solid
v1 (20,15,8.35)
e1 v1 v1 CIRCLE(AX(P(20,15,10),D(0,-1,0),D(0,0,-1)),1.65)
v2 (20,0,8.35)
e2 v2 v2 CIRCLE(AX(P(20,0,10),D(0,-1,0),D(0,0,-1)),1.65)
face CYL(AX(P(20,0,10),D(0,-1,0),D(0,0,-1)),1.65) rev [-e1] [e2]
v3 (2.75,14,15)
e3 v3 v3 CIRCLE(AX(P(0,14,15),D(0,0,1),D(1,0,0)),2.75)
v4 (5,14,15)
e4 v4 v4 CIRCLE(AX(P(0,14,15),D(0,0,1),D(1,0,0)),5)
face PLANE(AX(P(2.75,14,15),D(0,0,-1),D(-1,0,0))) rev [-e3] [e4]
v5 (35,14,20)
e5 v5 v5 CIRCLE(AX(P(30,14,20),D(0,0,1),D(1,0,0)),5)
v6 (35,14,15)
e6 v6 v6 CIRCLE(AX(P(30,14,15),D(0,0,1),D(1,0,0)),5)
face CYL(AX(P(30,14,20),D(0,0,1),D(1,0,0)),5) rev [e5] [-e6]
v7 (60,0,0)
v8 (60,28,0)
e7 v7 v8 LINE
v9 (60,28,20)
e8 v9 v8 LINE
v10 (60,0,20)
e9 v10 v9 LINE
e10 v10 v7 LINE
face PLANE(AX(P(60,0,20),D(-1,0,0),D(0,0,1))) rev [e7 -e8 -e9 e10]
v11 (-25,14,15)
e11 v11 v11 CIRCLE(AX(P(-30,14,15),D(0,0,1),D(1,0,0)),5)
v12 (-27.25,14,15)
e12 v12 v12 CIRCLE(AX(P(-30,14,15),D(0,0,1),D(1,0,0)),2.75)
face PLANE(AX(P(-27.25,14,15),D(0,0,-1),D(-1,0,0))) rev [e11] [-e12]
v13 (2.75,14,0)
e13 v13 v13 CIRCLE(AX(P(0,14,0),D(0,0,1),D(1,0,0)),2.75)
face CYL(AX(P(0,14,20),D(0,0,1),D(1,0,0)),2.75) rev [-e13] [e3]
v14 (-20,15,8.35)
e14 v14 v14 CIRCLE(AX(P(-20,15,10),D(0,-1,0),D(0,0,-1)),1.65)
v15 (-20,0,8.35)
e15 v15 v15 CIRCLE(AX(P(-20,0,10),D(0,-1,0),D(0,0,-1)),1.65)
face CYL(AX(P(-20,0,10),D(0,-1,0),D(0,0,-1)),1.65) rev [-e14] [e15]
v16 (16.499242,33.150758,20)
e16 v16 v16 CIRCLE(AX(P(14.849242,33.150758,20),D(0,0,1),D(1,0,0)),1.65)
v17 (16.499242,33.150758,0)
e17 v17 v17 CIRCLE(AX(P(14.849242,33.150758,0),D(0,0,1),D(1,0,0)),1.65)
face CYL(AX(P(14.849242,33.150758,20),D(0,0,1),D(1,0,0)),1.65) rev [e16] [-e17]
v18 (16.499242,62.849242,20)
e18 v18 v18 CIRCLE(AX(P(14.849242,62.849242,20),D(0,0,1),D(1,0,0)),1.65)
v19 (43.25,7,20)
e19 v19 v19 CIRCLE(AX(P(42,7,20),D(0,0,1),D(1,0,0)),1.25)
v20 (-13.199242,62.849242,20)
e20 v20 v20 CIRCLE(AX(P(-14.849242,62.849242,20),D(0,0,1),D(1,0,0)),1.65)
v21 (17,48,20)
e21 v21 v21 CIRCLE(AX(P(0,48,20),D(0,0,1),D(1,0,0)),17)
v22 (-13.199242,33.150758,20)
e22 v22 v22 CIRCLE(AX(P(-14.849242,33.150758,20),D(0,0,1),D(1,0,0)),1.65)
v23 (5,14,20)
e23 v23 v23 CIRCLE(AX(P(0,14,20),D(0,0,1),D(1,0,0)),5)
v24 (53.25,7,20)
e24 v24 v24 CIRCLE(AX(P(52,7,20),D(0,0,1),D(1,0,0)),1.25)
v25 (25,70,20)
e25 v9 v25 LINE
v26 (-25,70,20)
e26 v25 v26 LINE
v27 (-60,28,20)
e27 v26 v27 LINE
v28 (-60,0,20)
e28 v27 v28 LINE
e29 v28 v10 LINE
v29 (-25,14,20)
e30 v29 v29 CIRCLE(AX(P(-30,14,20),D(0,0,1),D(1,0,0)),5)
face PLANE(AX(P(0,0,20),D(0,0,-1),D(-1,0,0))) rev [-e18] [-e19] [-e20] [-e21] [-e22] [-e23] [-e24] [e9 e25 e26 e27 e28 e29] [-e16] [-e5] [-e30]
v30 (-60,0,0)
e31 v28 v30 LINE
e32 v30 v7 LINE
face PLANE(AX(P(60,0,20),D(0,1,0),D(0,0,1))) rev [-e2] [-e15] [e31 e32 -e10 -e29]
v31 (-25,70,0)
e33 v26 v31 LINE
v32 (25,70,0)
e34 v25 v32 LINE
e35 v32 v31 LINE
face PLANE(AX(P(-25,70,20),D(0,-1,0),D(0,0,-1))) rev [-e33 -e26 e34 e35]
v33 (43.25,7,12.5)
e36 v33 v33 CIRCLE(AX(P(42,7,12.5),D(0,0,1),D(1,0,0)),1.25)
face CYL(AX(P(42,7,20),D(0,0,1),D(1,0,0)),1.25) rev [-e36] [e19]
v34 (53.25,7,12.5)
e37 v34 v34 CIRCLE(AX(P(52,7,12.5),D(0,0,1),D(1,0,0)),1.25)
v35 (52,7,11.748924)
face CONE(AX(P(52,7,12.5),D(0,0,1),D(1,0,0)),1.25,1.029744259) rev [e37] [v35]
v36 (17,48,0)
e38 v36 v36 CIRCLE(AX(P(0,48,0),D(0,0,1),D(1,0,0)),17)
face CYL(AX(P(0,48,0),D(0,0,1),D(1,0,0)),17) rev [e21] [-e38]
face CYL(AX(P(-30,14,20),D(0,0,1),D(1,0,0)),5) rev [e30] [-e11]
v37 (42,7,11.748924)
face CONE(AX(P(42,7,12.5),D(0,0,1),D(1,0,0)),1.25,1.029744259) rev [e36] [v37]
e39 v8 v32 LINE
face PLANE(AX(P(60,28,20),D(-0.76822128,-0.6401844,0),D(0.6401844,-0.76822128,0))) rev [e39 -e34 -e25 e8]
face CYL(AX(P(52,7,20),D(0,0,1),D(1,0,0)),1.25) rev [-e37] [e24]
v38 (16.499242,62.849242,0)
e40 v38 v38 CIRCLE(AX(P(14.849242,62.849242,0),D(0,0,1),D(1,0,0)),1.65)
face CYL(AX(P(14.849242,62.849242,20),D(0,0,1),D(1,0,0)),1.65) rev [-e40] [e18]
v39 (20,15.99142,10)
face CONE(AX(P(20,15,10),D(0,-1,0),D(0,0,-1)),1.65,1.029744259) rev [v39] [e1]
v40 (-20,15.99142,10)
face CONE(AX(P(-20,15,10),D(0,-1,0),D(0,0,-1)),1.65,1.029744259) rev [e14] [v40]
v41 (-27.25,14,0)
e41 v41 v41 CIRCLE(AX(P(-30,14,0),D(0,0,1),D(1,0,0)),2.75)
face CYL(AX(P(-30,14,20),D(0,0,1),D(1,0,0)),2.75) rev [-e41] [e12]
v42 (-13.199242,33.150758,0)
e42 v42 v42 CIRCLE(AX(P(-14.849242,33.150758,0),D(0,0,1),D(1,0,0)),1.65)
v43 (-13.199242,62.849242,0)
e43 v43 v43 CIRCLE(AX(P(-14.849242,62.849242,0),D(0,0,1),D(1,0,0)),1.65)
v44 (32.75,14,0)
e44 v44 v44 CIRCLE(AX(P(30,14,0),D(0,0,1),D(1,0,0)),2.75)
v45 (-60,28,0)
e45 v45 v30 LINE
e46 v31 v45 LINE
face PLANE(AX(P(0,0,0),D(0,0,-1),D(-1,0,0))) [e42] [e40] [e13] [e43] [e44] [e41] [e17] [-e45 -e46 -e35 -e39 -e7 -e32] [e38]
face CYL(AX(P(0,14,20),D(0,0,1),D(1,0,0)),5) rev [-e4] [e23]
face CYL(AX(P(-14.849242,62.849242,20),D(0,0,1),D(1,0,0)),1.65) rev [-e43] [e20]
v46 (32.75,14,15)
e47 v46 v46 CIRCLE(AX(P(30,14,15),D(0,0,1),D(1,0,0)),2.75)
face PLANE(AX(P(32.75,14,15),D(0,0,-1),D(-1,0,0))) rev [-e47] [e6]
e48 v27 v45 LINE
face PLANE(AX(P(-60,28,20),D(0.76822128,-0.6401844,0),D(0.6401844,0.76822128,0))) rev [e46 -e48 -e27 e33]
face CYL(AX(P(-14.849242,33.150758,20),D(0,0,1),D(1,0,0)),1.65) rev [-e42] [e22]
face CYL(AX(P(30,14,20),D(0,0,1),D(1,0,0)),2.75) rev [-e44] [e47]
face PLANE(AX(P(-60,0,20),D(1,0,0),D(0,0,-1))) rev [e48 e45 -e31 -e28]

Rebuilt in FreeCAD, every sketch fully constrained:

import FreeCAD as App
import Part
import Sketcher
from FreeCAD import Vector

doc = App.newDocument("Part")
body = doc.addObject("PartDesign::Body", "Body")

sketch1 = body.newObject("Sketcher::SketchObject", "Sketch")
sketch1.AttachmentSupport = (doc.getObject("XY_Plane"), [""])
sketch1.MapMode = "FlatFace"
sketch1.addGeometry([
    Part.LineSegment(Vector(-60, 0, 0), Vector(60, 0, 0)),
    Part.LineSegment(Vector(60, 0, 0), Vector(60, 28, 0)),
    Part.LineSegment(Vector(60, 28, 0), Vector(25, 70, 0)),
    Part.LineSegment(Vector(25, 70, 0), Vector(-25, 70, 0)),
    Part.LineSegment(Vector(-25, 70, 0), Vector(-60, 28, 0)),
    Part.LineSegment(Vector(-60, 28, 0), Vector(-60, 0, 0)),
], False)
sketch1.addConstraint([
    Sketcher.Constraint("Coincident", 0, 2, 1, 1),
    Sketcher.Constraint("Coincident", 1, 2, 2, 1),
    Sketcher.Constraint("Coincident", 2, 2, 3, 1),
    Sketcher.Constraint("Coincident", 3, 2, 4, 1),
    Sketcher.Constraint("Coincident", 4, 2, 5, 1),
    Sketcher.Constraint("Coincident", 5, 2, 0, 1),
    Sketcher.Constraint("Horizontal", 0),
    Sketcher.Constraint("Vertical", 1),
    Sketcher.Constraint("Horizontal", 3),
    Sketcher.Constraint("Vertical", 5),
    Sketcher.Constraint("Symmetric", 0, 2, 5, 2, -1, 1),
    Sketcher.Constraint("Horizontal", 1, 2, 4, 2),
    Sketcher.Constraint("Equal", 2, 4),
    Sketcher.Constraint("DistanceX", 0, 1, 0, 2, 120.0),
    Sketcher.Constraint("DistanceX", 3, 2, 3, 1, 50.0),
    Sketcher.Constraint("DistanceY", 1, 1, 1, 2, 28.0),
    Sketcher.Constraint("DistanceY", -1, 1, 2, 2, 70.0),
])
pad1 = body.newObject("PartDesign::Pad", "Pad")
pad1.Profile = sketch1
pad1.Length = 20

sketch2 = body.newObject("Sketcher::SketchObject", "Sketch001")
sketch2.AttachmentSupport = (doc.getObject("XY_Plane"), [""])
sketch2.MapMode = "FlatFace"
sketch2.AttachmentOffset = App.Placement(Vector(0, 0, 20), App.Rotation())
sketch2.addGeometry([
    Part.Circle(Vector(-30, 14, 0), Vector(0, 0, 1), 2.75),
    Part.Circle(Vector(0, 14, 0), Vector(0, 0, 1), 2.75),
    Part.Circle(Vector(30, 14, 0), Vector(0, 0, 1), 2.75),
], False)
sketch2.addConstraint([
    Sketcher.Constraint("Equal", 0, 1),
    Sketcher.Constraint("Equal", 1, 2),
    Sketcher.Constraint("Symmetric", 0, 3, 2, 3, -2),
    Sketcher.Constraint("PointOnObject", 1, 3, -2),
    Sketcher.Constraint("Horizontal", 0, 3, 1, 3),
    Sketcher.Constraint("Diameter", 0, 5.5),
    Sketcher.Constraint("DistanceX", 0, 3, -1, 1, 30.0),
    Sketcher.Constraint("DistanceY", -1, 1, 0, 3, 14.0),
])
doc.recompute()
hole = body.newObject("PartDesign::Hole", "Hole")
hole.Profile = sketch2
hole.ThreadType = "None"
hole.Diameter = 5.5
hole.DepthType = "ThroughAll"
hole.HoleCutType = "Counterbore"
hole.HoleCutDiameter = 10
hole.HoleCutDepth = 5

sketch3 = body.newObject("Sketcher::SketchObject", "Sketch002")
sketch3.AttachmentSupport = (doc.getObject("XY_Plane"), [""])
sketch3.MapMode = "FlatFace"
sketch3.AttachmentOffset = App.Placement(Vector(0, 0, 20), App.Rotation())
sketch3.addGeometry(Part.Circle(Vector(0, 48, 0), Vector(0, 0, 1), 17), False)
sketch3.addConstraint([
    Sketcher.Constraint("PointOnObject", 0, 3, -2),
    Sketcher.Constraint("Diameter", 0, 34.0),
    Sketcher.Constraint("DistanceY", -1, 1, 0, 3, 48.0),
])
pocket1 = body.newObject("PartDesign::Pocket", "Pocket")
pocket1.Profile = sketch3
pocket1.Type = "ThroughAll"

sketch4 = body.newObject("Sketcher::SketchObject", "Sketch003")
sketch4.AttachmentSupport = (doc.getObject("XY_Plane"), [""])
sketch4.MapMode = "FlatFace"
sketch4.AttachmentOffset = App.Placement(Vector(0, 0, 20), App.Rotation())
sketch4.addGeometry([
    Part.Circle(Vector(-14.849242, 62.849242, 0), Vector(0, 0, 1), 1.65),
    Part.Circle(Vector(14.849242, 62.849242, 0), Vector(0, 0, 1), 1.65),
    Part.Circle(Vector(14.849242, 33.150758, 0), Vector(0, 0, 1), 1.65),
    Part.Circle(Vector(-14.849242, 33.150758, 0), Vector(0, 0, 1), 1.65),
], False)
sketch4.addConstraint([
    Sketcher.Constraint("Equal", 0, 1),
    Sketcher.Constraint("Equal", 1, 2),
    Sketcher.Constraint("Equal", 2, 3),
    Sketcher.Constraint("Symmetric", 0, 3, 1, 3, -2),
    Sketcher.Constraint("Symmetric", 2, 3, 3, 3, -2),
    Sketcher.Constraint("Vertical", 1, 3, 2, 3),
    Sketcher.Constraint("Diameter", 0, 3.3),
    Sketcher.Constraint("DistanceX", 0, 3, -1, 1, 14.849242),
    Sketcher.Constraint("DistanceY", -1, 1, 0, 3, 62.849242),
    Sketcher.Constraint("DistanceY", -1, 1, 2, 3, 33.150758),
])
doc.recompute()
hole2 = body.newObject("PartDesign::Hole", "Hole001")
hole2.Profile = sketch4
hole2.ThreadType = "None"
hole2.Diameter = 3.3
hole2.DepthType = "ThroughAll"

sketch5 = body.newObject("Sketcher::SketchObject", "Sketch004")
sketch5.AttachmentSupport = (doc.getObject("XZ_Plane"), [""])
sketch5.MapMode = "FlatFace"
sketch5.addGeometry([
    Part.Circle(Vector(-20, 10, 0), Vector(0, 0, 1), 1.65),
    Part.Circle(Vector(20, 10, 0), Vector(0, 0, 1), 1.65),
], False)
sketch5.addConstraint([
    Sketcher.Constraint("Equal", 0, 1),
    Sketcher.Constraint("Symmetric", 0, 3, 1, 3, -2),
    Sketcher.Constraint("Diameter", 0, 3.3),
    Sketcher.Constraint("DistanceX", 0, 3, -1, 1, 20.0),
    Sketcher.Constraint("DistanceY", -1, 1, 0, 3, 10.0),
])
doc.recompute()
hole3 = body.newObject("PartDesign::Hole", "Hole002")
hole3.Profile = sketch5
hole3.ThreadType = "None"
hole3.Diameter = 3.3
hole3.DepthType = "Dimension"
hole3.Depth = 15
hole3.DrillPoint = "Angled"
hole3.DrillPointAngle = 118

sketch6 = body.newObject("Sketcher::SketchObject", "Sketch005")
sketch6.AttachmentSupport = (doc.getObject("XY_Plane"), [""])
sketch6.MapMode = "FlatFace"
sketch6.AttachmentOffset = App.Placement(Vector(0, 0, 20), App.Rotation())
sketch6.addGeometry([
    Part.Circle(Vector(42, 7, 0), Vector(0, 0, 1), 1.25),
    Part.Circle(Vector(52, 7, 0), Vector(0, 0, 1), 1.25),
], False)
sketch6.addConstraint([
    Sketcher.Constraint("Equal", 0, 1),
    Sketcher.Constraint("Horizontal", 0, 3, 1, 3),
    Sketcher.Constraint("Diameter", 0, 2.5),
    Sketcher.Constraint("DistanceX", -1, 1, 0, 3, 42.0),
    Sketcher.Constraint("DistanceY", -1, 1, 0, 3, 7.0),
    Sketcher.Constraint("DistanceX", -1, 1, 1, 3, 52.0),
])
doc.recompute()
hole4 = body.newObject("PartDesign::Hole", "Hole003")
hole4.Profile = sketch6
hole4.ThreadType = "None"
hole4.Diameter = 2.5
hole4.DepthType = "Dimension"
hole4.Depth = 7.5
hole4.DrillPoint = "Angled"
hole4.DrillPointAngle = 118

doc.recompute()
